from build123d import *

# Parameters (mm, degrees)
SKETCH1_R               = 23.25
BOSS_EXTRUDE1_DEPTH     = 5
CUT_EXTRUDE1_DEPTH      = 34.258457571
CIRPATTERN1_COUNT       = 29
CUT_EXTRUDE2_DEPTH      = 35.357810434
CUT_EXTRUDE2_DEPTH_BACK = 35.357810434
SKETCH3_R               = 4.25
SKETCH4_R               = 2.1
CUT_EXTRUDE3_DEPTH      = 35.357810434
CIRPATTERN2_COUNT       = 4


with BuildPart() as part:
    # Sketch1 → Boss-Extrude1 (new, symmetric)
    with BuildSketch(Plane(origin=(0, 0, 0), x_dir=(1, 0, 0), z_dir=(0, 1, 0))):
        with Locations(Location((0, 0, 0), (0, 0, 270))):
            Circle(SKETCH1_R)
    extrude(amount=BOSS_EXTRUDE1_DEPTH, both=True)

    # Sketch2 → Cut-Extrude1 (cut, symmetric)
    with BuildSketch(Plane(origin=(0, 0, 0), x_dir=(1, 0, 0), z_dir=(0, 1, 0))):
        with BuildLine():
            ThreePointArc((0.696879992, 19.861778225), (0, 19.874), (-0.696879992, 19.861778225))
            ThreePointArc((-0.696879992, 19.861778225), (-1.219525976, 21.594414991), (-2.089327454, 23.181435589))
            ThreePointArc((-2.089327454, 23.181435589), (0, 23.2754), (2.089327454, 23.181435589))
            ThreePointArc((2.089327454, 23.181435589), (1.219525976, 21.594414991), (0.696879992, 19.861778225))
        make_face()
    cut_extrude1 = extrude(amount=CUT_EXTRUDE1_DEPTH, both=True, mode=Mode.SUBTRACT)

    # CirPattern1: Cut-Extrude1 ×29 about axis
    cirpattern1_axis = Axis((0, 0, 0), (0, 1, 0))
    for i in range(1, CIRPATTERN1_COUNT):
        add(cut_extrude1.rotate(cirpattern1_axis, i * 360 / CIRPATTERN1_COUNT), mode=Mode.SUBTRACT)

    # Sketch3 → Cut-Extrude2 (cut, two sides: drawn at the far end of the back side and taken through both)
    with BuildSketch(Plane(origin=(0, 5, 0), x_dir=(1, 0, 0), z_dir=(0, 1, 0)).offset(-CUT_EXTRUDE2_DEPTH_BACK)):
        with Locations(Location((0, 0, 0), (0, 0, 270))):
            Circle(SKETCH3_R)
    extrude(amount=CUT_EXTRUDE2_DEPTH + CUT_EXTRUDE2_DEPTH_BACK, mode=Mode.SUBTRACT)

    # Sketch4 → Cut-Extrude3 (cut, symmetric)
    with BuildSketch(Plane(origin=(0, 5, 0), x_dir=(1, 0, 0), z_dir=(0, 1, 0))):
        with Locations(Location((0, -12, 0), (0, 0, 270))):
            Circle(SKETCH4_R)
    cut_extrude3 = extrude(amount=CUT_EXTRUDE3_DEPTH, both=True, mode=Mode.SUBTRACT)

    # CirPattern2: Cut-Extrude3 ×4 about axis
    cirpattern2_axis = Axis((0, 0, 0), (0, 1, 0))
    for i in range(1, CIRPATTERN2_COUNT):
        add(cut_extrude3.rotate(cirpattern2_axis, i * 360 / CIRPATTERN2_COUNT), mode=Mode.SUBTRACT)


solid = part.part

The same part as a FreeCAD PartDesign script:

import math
import FreeCAD as App
import Part
import Sketcher
from FreeCAD import Vector

doc = App.newDocument("Part")
body = doc.addObject("PartDesign::Body", "Body")

sketch1 = doc.addObject("Sketcher::SketchObject", "Sketch")
body.addObject(sketch1)
sketch1.AttachmentSupport = (doc.XZ_Plane, [""])
sketch1.MapMode = "FlatFace"
sketch1.addGeometry(Part.Circle(Vector(0, 0, 0), Vector(0, 0, 1), 23.25), False)
sketch1.addConstraint(Sketcher.Constraint("Coincident", 0, 3, -1, 1))
sketch1.addConstraint(Sketcher.Constraint("Diameter", 0, 46.5))
pad1 = doc.addObject("PartDesign::Pad", "Pad")
body.addObject(pad1)
pad1.Profile = sketch1
pad1.Length = 10
pad1.Midplane = True

sketch2 = doc.addObject("Sketcher::SketchObject", "Sketch001")
body.addObject(sketch2)
sketch2.AttachmentSupport = (doc.XZ_Plane, [""])
sketch2.MapMode = "FlatFace"
sketch2.addGeometry(Part.ArcOfCircle(Part.Circle(Vector(0, -0.000001, 0), Vector(0, 0, 1), 19.873999), math.radians(-92.009483), math.radians(-87.990517)), False)
sketch2.addGeometry(Part.ArcOfCircle(Part.Circle(Vector(9.24233, -18.229208, 0), Vector(0, 0, 1), 8.7), math.radians(-169.184228), math.radians(-145.304042)), False)
sketch2.addGeometry(Part.ArcOfCircle(Part.Circle(Vector(0, 0, 0), Vector(0, 0, 1), 23.2754), math.radians(-95.150115), math.radians(-84.849885)), False)
sketch2.addGeometry(Part.ArcOfCircle(Part.Circle(Vector(-9.24233, -18.229208, 0), Vector(0, 0, 1), 8.7), math.radians(-34.695958), math.radians(-10.815772)), False)
sketch2.addConstraint(Sketcher.Constraint("Coincident", 0, 2, 1, 1))
sketch2.addConstraint(Sketcher.Constraint("Coincident", 1, 2, 2, 2))
sketch2.addConstraint(Sketcher.Constraint("Coincident", 2, 1, 3, 1))
sketch2.addConstraint(Sketcher.Constraint("Coincident", 3, 2, 0, 1))
sketch2.addConstraint(Sketcher.Constraint("Coincident", 0, 3, -1, 1))
sketch2.addConstraint(Sketcher.Constraint("Coincident", 2, 3, -1, 1))
sketch2.addConstraint(Sketcher.Constraint("Equal", 1, 3))
sketch2.addConstraint(Sketcher.Constraint("Symmetric", 1, 3, 3, 3, -2))
sketch2.addConstraint(Sketcher.Constraint("Radius", 1, 8.7))
sketch2.addConstraint(Sketcher.Constraint("Radius", 0, 19.873999))
sketch2.addConstraint(Sketcher.Constraint("Radius", 2, 23.2754))
sketch2.addConstraint(Sketcher.Constraint("DistanceX", -1, 1, 1, 3, 9.24233))
sketch2.addConstraint(Sketcher.Constraint("DistanceY", 1, 3, -1, 1, 18.229208))
pocket1 = doc.addObject("PartDesign::Pocket", "Pocket")
body.addObject(pocket1)
pocket1.Profile = sketch2
pocket1.Length = 68.516915
pocket1.Midplane = True
doc.recompute()

polarpattern = doc.addObject("PartDesign::PolarPattern", "PolarPattern")
body.addObject(polarpattern)
polarpattern.Originals = [pocket1]
polarpattern.Axis = (doc.Y_Axis, [""])
polarpattern.Angle = 360
polarpattern.Occurrences = 29
body.Tip = polarpattern

sketch3 = doc.addObject("Sketcher::SketchObject", "Sketch002")
body.addObject(sketch3)
sketch3.AttachmentSupport = (doc.XZ_Plane, [""])
sketch3.MapMode = "FlatFace"
sketch3.AttachmentOffset = App.Placement(Vector(0, 0, -5), App.Rotation())
sketch3.addGeometry(Part.Circle(Vector(0, 0, 0), Vector(0, 0, 1), 4.25), False)
sketch3.addConstraint(Sketcher.Constraint("Coincident", 0, 3, -1, 1))
sketch3.addConstraint(Sketcher.Constraint("Diameter", 0, 8.5))
pocket2 = doc.addObject("PartDesign::Pocket", "Pocket001")
body.addObject(pocket2)
pocket2.Profile = sketch3
pocket2.Type = "ThroughAll"
pocket2.Midplane = True

sketch4 = doc.addObject("Sketcher::SketchObject", "Sketch003")
body.addObject(sketch4)
sketch4.AttachmentSupport = (doc.XZ_Plane, [""])
sketch4.MapMode = "FlatFace"
sketch4.AttachmentOffset = App.Placement(Vector(0, 0, -5), App.Rotation())
sketch4.addGeometry(Part.Circle(Vector(0, 12, 0), Vector(0, 0, 1), 2.1), False)
sketch4.addConstraint(Sketcher.Constraint("PointOnObject", 0, 3, -2))
sketch4.addConstraint(Sketcher.Constraint("Diameter", 0, 4.2))
sketch4.addConstraint(Sketcher.Constraint("DistanceY", -1, 1, 0, 3, 12.0))
pocket3 = doc.addObject("PartDesign::Pocket", "Pocket002")
body.addObject(pocket3)
pocket3.Profile = sketch4
pocket3.Length = 70.715621
pocket3.Midplane = True
doc.recompute()

polarpattern2 = doc.addObject("PartDesign::PolarPattern", "PolarPattern001")
body.addObject(polarpattern2)
polarpattern2.Originals = [pocket3]
polarpattern2.Axis = (doc.Y_Axis, [""])
polarpattern2.Angle = 360
polarpattern2.Occurrences = 4
body.Tip = polarpattern2

doc.recompute()
